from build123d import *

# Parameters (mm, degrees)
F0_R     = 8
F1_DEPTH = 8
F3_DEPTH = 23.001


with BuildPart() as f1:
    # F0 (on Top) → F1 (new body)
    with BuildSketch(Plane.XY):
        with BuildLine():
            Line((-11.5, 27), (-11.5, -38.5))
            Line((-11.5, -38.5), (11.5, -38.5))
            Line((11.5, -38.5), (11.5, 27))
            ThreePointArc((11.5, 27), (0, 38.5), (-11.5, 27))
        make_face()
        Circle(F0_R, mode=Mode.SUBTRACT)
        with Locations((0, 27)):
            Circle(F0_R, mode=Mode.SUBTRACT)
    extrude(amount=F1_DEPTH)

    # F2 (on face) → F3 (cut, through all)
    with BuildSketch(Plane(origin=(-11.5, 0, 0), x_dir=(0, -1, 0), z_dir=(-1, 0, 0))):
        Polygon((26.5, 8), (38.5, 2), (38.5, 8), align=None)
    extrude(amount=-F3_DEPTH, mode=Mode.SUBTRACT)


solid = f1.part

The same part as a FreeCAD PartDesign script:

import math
import FreeCAD as App
import Part
import Sketcher
from FreeCAD import Vector

doc = App.newDocument("Part")
body = doc.addObject("PartDesign::Body", "Body")

# Sketch on XY plane
sketch1 = doc.addObject("Sketcher::SketchObject", "Sketch")
body.addObject(sketch1)
sketch1.AttachmentSupport = (doc.XY_Plane, [""])
sketch1.MapMode = "FlatFace"
sketch1.addGeometry(Part.LineSegment(Vector(-12, 27, 0), Vector(-12, -38, 0)), False)
sketch1.addGeometry(Part.LineSegment(Vector(-12, -38, 0), Vector(12, -38, 0)), False)
sketch1.addGeometry(Part.LineSegment(Vector(12, -38, 0), Vector(12, 27, 0)), False)
sketch1.addGeometry(Part.ArcOfCircle(Part.Circle(Vector(0, 27, 0), Vector(0, 0, 1), 12), math.radians(0), math.radians(180)), False)
sketch1.addGeometry(Part.Circle(Vector(0, 0, 0), Vector(0, 0, 1), 8), False)
sketch1.addGeometry(Part.Circle(Vector(0, 27, 0), Vector(0, 0, 1), 8), False)
sketch1.addConstraint(Sketcher.Constraint("Coincident", 0, 2, 1, 1))
sketch1.addConstraint(Sketcher.Constraint("Coincident", 1, 2, 2, 1))
sketch1.addConstraint(Sketcher.Constraint("Tangent", 2, 2, 3, 1))
sketch1.addConstraint(Sketcher.Constraint("Tangent", 3, 2, 0, 1))
sketch1.addConstraint(Sketcher.Constraint("Vertical", 0))
sketch1.addConstraint(Sketcher.Constraint("Horizontal", 1))
sketch1.addConstraint(Sketcher.Constraint("Vertical", 2))
sketch1.addConstraint(Sketcher.Constraint("Coincident", 4, 3, -1, 1))
sketch1.addConstraint(Sketcher.Constraint("Coincident", 5, 3, 3, 3))
sketch1.addConstraint(Sketcher.Constraint("Equal", 4, 5))
sketch1.addConstraint(Sketcher.Constraint("PointOnObject", 3, 3, -2))
sketch1.addConstraint(Sketcher.Constraint("Diameter", 4, 16.0))
sketch1.addConstraint(Sketcher.Constraint("Radius", 3, 11.5))
sketch1.addConstraint(Sketcher.Constraint("DistanceY", 0, 2, 0, 1, 65.5))
sketch1.addConstraint(Sketcher.Constraint("DistanceY", -1, 1, 3, 3, 27.0))
pad1 = doc.addObject("PartDesign::Pad", "Pad")
body.addObject(pad1)
pad1.Profile = sketch1
pad1.Length = 8

# Sketch on YZ plane
sketch2 = doc.addObject("Sketcher::SketchObject", "Sketch001")
body.addObject(sketch2)
sketch2.AttachmentSupport = (doc.YZ_Plane, [""])
sketch2.MapMode = "FlatFace"
sketch2.AttachmentOffset = App.Placement(Vector(0, 0, -11.5), App.Rotation())
sketch2.addGeometry(Part.LineSegment(Vector(-26, 8, 0), Vector(-38, 2, 0)), False)
sketch2.addGeometry(Part.LineSegment(Vector(-38, 2, 0), Vector(-38, 8, 0)), False)
sketch2.addGeometry(Part.LineSegment(Vector(-38, 8, 0), Vector(-26, 8, 0)), False)
sketch2.addConstraint(Sketcher.Constraint("Coincident", 0, 2, 1, 1))
sketch2.addConstraint(Sketcher.Constraint("Coincident", 1, 2, 2, 1))
sketch2.addConstraint(Sketcher.Constraint("Coincident", 2, 2, 0, 1))
sketch2.addConstraint(Sketcher.Constraint("Vertical", 1))
sketch2.addConstraint(Sketcher.Constraint("Horizontal", 2))
sketch2.addConstraint(Sketcher.Constraint("DistanceX", 2, 1, 2, 2, 12.0))
sketch2.addConstraint(Sketcher.Constraint("DistanceY", 1, 1, 1, 2, 6.0))
sketch2.addConstraint(Sketcher.Constraint("DistanceY", -1, 1, 0, 2, 2.0))
sketch2.addConstraint(Sketcher.Constraint("DistanceX", 0, 2, -1, 1, 38.5))
pocket1 = doc.addObject("PartDesign::Pocket", "Pocket")
body.addObject(pocket1)
pocket1.Profile = sketch2
pocket1.Type = "ThroughAll"
pocket1.Reversed = True

doc.recompute()
